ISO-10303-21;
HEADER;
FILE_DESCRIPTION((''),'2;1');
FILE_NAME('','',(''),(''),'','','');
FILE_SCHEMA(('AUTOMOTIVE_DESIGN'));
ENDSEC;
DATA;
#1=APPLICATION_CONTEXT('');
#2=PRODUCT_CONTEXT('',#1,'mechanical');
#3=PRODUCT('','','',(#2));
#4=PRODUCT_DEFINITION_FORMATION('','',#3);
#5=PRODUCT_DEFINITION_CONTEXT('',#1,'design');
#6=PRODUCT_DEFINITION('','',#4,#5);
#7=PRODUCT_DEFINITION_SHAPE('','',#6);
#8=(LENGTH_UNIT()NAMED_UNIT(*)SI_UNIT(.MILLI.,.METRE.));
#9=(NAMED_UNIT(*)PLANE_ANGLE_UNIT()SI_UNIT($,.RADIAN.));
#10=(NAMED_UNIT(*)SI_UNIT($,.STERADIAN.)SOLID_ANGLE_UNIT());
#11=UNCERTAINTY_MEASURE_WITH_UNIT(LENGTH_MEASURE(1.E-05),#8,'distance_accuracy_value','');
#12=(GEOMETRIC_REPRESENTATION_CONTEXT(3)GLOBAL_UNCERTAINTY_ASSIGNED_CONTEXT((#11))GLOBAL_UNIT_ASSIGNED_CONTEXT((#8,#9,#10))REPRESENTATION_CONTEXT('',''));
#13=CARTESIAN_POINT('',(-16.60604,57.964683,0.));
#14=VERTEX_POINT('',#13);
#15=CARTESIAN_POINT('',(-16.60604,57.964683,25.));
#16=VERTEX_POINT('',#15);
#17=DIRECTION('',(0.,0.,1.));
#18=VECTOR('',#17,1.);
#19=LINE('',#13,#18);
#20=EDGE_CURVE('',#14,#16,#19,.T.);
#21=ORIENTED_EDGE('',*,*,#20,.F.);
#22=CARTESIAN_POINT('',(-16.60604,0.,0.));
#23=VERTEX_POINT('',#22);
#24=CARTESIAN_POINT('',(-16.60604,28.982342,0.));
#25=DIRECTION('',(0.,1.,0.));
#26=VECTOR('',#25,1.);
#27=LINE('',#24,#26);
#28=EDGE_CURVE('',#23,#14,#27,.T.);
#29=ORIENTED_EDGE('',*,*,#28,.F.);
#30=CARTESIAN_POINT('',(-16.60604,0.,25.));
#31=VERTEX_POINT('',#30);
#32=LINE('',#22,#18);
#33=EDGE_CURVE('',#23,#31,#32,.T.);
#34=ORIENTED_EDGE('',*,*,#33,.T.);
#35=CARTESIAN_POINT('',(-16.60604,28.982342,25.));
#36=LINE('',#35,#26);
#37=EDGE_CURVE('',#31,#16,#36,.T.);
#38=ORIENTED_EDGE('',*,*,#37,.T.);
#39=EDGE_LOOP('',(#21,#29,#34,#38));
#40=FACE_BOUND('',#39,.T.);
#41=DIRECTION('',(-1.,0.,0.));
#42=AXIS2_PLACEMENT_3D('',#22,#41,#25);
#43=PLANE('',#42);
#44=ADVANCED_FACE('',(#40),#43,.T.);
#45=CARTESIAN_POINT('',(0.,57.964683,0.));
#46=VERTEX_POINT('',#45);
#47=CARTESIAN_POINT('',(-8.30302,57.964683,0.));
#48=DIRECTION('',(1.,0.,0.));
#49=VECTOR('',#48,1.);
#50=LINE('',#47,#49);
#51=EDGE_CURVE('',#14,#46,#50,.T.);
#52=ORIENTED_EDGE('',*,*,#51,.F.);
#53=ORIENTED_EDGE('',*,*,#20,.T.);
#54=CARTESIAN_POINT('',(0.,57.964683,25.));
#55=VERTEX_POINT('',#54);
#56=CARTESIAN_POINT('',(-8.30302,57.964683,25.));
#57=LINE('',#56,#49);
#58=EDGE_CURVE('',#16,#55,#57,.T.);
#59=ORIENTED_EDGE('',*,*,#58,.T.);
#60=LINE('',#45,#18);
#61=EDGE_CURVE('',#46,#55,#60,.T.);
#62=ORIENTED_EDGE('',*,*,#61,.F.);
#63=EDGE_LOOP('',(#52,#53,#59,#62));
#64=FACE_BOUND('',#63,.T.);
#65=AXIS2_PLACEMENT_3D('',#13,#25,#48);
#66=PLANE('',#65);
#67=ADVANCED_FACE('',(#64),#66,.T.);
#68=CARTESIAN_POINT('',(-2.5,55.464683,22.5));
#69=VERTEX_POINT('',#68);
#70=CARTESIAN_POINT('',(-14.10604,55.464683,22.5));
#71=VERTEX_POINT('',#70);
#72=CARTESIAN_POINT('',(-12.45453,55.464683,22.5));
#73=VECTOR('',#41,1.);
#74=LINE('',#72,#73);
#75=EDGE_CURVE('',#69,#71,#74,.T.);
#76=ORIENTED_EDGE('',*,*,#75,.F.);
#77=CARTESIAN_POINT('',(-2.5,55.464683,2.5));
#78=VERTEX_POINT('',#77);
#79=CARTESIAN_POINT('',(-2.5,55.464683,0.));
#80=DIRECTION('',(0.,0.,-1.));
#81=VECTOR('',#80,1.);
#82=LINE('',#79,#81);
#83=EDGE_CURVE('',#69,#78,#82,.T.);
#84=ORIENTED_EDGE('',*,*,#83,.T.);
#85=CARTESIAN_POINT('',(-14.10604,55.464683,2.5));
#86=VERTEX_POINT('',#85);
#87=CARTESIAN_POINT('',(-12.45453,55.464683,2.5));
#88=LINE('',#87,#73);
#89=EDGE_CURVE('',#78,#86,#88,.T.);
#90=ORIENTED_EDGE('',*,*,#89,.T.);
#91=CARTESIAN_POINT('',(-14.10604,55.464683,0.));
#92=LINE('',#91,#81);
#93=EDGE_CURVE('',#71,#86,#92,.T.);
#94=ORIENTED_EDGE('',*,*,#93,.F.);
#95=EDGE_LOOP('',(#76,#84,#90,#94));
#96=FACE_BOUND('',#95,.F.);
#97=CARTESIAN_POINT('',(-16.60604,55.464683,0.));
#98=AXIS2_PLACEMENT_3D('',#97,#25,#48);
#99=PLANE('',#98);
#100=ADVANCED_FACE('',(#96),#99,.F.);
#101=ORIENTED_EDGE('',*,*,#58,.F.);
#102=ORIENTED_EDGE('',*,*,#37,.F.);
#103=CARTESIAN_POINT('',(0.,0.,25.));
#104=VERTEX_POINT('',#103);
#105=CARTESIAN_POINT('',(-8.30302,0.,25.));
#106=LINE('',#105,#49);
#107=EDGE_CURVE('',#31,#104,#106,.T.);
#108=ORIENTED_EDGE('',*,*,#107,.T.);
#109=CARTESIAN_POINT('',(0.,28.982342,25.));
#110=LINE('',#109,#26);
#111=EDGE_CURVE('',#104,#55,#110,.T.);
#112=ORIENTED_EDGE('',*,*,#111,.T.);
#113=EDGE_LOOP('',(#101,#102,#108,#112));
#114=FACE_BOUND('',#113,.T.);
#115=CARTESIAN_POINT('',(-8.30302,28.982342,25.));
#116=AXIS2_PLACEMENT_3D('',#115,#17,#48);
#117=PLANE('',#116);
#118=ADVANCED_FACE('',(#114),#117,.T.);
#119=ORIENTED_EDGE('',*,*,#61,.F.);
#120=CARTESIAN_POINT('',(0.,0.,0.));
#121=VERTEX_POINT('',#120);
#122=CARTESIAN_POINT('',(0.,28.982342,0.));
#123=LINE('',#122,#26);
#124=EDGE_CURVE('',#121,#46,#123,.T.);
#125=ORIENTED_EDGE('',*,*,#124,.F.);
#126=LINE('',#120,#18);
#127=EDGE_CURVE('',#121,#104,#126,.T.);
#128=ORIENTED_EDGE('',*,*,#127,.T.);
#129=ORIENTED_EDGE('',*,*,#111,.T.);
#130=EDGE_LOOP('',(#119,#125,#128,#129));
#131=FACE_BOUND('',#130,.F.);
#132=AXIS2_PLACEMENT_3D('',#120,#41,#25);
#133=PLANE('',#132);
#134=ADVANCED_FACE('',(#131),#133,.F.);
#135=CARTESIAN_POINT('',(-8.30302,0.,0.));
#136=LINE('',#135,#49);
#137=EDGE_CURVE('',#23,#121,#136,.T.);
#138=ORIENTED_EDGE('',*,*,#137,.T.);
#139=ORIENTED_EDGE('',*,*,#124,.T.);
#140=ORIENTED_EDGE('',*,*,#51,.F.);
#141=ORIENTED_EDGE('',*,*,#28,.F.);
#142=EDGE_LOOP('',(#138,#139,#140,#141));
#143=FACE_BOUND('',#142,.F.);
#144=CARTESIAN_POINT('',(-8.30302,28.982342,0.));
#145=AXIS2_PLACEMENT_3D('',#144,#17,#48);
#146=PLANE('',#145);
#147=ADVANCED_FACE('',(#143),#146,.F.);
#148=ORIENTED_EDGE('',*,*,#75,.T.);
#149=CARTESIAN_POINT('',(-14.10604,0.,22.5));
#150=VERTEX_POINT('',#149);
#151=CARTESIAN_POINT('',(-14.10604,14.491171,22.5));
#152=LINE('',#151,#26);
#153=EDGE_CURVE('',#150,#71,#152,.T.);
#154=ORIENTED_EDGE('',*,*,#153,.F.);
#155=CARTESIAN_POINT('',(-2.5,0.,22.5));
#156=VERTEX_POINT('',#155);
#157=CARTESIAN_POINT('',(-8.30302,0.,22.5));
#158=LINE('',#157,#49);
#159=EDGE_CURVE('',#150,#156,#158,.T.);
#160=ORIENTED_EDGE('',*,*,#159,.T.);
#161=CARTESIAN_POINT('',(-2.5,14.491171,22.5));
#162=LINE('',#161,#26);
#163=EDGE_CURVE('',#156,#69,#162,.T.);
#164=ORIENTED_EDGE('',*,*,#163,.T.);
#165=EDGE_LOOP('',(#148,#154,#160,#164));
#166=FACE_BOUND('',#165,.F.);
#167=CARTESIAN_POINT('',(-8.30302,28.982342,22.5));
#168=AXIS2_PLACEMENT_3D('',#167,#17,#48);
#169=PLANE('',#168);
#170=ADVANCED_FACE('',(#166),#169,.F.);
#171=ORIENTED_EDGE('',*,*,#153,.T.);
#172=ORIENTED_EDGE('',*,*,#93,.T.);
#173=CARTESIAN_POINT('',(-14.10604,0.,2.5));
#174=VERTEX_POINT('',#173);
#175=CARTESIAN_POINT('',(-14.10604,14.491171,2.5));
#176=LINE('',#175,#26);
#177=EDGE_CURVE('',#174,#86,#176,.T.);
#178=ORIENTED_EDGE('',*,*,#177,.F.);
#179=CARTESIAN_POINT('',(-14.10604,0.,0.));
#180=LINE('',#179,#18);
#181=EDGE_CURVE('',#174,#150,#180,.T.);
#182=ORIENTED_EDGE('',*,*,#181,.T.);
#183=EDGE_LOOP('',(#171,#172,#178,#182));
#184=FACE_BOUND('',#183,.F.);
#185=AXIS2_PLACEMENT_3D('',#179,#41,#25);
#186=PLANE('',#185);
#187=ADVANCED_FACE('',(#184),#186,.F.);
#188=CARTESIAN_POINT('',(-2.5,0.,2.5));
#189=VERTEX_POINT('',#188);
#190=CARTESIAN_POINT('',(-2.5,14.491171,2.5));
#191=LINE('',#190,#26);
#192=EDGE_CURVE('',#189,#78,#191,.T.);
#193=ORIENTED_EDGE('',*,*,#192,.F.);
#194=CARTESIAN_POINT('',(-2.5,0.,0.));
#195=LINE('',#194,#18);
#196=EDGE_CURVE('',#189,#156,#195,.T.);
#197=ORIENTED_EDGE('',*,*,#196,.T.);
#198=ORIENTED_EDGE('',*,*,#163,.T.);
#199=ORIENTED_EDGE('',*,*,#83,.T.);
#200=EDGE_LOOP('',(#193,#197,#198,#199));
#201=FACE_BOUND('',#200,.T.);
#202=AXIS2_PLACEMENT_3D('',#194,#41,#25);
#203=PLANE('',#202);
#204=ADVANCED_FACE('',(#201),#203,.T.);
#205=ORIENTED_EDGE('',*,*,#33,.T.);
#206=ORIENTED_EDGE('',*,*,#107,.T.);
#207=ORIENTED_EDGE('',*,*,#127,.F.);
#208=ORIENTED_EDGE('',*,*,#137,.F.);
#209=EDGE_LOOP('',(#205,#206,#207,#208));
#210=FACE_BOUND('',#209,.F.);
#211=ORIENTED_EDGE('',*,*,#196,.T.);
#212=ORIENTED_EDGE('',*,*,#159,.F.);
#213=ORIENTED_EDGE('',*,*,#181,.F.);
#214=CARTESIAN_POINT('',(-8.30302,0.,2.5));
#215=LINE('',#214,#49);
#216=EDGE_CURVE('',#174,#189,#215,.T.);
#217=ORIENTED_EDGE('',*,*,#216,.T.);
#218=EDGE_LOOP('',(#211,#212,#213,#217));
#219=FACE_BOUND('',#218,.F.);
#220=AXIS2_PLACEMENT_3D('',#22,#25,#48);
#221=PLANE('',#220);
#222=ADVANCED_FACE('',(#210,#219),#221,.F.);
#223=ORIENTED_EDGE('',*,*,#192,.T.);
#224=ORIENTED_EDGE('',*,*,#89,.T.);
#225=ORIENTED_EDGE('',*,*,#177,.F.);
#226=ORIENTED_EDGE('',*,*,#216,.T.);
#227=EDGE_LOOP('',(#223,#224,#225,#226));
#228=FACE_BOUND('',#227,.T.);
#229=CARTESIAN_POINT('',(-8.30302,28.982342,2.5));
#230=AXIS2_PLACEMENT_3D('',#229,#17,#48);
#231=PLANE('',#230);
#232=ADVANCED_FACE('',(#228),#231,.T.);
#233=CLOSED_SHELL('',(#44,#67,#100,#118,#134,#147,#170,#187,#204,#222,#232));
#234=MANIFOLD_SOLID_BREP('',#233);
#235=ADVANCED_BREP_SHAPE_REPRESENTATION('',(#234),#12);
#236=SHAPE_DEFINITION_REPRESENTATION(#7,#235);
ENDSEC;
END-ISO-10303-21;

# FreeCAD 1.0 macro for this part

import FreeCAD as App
import Part
import Sketcher
from FreeCAD import Vector


def faces_at(feature, points):
    """Names of the faces that lie closest to the given points."""
    faces = feature.Shape.Faces
    near = lambda p: min(range(len(faces)), key=lambda i: faces[i].distToShape(Part.Vertex(*p))[0])
    return sorted({f"Face{near(p) + 1}" for p in points})


def add_polygon(sketch, points):
    """Adds a closed chain of lines whose ends are joined by coincident constraints."""
    first, n = sketch.GeometryCount, len(points)
    for a, b in zip(points, points[1:] + points[:1]):
        sketch.addGeometry(Part.LineSegment(App.Vector(*a, 0), App.Vector(*b, 0)), False)
    for i in range(n):
        sketch.addConstraint(Sketcher.Constraint("Coincident", first + i, 2, first + (i + 1) % n, 1))

doc = App.newDocument("Part")
body = doc.addObject("PartDesign::Body", "Body")

sketch1 = body.newObject("Sketcher::SketchObject", "Sketch")
sketch1.AttachmentSupport = (doc.getObject("XY_Plane"), [""])
sketch1.MapMode = "FlatFace"
add_polygon(sketch1, [(-16.60604, 57.964683), (-16.60604, 0), (0, 0), (0, 57.964683)])
sketch1.addConstraint(Sketcher.Constraint("Vertical", 0))
sketch1.addConstraint(Sketcher.Constraint("Horizontal", 1))
sketch1.addConstraint(Sketcher.Constraint("Vertical", 2))
sketch1.addConstraint(Sketcher.Constraint("Horizontal", 3))
sketch1.addConstraint(Sketcher.Constraint("Coincident", 1, 2, -1, 1))
sketch1.addConstraint(Sketcher.Constraint("DistanceX", 1, 1, 1, 2, 16.60604))
sketch1.addConstraint(Sketcher.Constraint("DistanceY", 0, 2, 0, 1, 57.964683))
pad1 = body.newObject("PartDesign::Pad", "Pad")
pad1.Profile = sketch1
pad1.Length = 25
doc.recompute()

thickness = body.newObject("PartDesign::Thickness", "Thickness")
thickness.Base = (pad1, faces_at(pad1, [(-8.303, 0, 12.5)]))
thickness.Value = 2.5
thickness.Reversed = True
thickness.Join = "Arc"

doc.recompute()
